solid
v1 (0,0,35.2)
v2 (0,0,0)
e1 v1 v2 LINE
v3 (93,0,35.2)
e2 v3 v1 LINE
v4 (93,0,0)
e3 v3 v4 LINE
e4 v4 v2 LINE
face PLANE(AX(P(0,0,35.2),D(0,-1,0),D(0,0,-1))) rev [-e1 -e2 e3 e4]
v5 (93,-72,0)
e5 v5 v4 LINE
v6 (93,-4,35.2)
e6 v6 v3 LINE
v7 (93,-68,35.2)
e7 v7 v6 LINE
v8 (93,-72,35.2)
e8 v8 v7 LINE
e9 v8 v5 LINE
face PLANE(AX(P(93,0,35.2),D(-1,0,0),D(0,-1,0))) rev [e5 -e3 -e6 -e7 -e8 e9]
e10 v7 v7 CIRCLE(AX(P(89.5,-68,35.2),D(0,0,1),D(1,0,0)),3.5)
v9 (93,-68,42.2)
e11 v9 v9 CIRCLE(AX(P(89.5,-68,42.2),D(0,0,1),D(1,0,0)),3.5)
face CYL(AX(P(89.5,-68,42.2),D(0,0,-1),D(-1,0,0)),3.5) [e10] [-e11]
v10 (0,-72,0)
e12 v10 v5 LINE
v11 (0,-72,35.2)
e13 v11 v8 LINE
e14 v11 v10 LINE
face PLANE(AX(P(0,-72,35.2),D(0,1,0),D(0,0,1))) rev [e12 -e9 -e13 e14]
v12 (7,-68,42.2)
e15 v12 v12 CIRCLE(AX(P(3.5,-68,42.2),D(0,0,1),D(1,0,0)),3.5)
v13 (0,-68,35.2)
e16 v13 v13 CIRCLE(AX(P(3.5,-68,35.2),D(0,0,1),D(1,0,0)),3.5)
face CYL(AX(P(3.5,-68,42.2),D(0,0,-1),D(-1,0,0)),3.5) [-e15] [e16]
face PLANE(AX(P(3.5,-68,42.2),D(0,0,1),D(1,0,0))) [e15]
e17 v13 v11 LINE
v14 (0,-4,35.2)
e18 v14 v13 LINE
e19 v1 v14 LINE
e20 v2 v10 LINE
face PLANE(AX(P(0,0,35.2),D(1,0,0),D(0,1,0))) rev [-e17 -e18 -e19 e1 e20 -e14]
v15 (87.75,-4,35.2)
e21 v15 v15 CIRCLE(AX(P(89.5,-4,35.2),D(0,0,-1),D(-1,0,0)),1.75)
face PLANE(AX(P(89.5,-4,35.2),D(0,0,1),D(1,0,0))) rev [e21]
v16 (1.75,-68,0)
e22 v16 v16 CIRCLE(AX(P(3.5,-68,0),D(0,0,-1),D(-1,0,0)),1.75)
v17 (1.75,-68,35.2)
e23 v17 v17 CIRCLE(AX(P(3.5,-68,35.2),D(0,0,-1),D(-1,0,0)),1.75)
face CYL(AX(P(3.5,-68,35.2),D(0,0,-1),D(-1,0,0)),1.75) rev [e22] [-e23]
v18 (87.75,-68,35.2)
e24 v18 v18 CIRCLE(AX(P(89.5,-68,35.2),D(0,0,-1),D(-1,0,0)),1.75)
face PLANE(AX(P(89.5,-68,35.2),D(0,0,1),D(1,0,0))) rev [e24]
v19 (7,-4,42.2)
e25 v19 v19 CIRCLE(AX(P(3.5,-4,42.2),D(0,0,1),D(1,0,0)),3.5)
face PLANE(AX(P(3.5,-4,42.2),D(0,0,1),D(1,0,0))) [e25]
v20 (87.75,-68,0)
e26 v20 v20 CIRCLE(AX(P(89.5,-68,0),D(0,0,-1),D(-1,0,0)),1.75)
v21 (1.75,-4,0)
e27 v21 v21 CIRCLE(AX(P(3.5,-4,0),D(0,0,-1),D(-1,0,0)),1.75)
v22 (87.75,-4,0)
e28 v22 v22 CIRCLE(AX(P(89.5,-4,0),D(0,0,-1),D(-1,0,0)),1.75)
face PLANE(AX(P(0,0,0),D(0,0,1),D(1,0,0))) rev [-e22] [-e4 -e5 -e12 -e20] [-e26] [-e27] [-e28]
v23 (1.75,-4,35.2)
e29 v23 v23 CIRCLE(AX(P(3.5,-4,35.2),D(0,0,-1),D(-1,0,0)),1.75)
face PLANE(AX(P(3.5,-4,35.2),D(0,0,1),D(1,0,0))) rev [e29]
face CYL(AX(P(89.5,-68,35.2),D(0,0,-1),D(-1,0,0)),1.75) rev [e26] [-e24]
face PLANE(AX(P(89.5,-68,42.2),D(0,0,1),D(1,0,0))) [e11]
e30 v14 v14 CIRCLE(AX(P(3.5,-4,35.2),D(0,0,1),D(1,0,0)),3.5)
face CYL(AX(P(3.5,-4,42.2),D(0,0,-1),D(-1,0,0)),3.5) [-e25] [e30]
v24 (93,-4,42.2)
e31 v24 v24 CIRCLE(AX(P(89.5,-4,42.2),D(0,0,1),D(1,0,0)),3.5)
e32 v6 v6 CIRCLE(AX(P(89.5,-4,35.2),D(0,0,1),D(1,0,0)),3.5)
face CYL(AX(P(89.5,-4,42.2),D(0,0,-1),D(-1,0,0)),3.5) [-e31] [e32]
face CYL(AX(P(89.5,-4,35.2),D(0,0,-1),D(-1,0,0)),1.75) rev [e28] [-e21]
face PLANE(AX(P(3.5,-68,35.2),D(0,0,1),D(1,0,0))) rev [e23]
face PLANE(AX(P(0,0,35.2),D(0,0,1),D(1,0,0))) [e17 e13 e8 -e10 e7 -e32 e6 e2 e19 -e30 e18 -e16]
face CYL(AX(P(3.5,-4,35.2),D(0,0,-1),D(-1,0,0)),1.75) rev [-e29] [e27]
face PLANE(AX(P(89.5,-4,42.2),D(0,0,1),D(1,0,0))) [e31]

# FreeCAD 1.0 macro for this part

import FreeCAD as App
import Part
import Sketcher

V = App.Vector


def add_polygon(sketch, points):
    """Adds a closed chain of lines whose ends are joined by coincident constraints."""
    first, n = sketch.GeometryCount, len(points)
    for a, b in zip(points, points[1:] + points[:1]):
        sketch.addGeometry(Part.LineSegment(App.Vector(*a, 0), App.Vector(*b, 0)), False)
    for i in range(n):
        sketch.addConstraint(Sketcher.Constraint("Coincident", first + i, 2, first + (i + 1) % n, 1))

doc = App.newDocument("Part")
params = doc.addObject("Spreadsheet::Sheet", "Params")
for row, (alias, value) in enumerate([
    ("sketch1_width", "93 mm"),
    ("sketch1_height", "72 mm"),
    ("pad1_length", "35.2 mm"),
    ("sketch2_diameter", "3.5 mm"),
    ("sketch3_diameter", "7 mm"),
    ("pad2_length", "7 mm"),
], start=1):
    params.set(f"A{row}", alias)
    params.set(f"B{row}", "=" + value)
    params.setAlias(f"B{row}", alias)

body = doc.addObject("PartDesign::Body", "Body")

# Sketch on XY plane
sketch1 = body.newObject("Sketcher::SketchObject", "Sketch")
sketch1.AttachmentSupport = (doc.getObject("XY_Plane"), [""])
sketch1.MapMode = "FlatFace"
add_polygon(sketch1, [(0, 0), (0, -72), (93, -72), (93, 0)])  # lines 0-3
sketch1.addConstraint(Sketcher.Constraint("Vertical", 0))
sketch1.addConstraint(Sketcher.Constraint("Horizontal", 1))
sketch1.addConstraint(Sketcher.Constraint("Vertical", 2))
sketch1.addConstraint(Sketcher.Constraint("Horizontal", 3))
sketch1.addConstraint(Sketcher.Constraint("Coincident", 3, 2, -1, 1))
sketch1.addConstraint(Sketcher.Constraint("DistanceX", 1, 1, 1, 2, 93.0))
sketch1.addConstraint(Sketcher.Constraint("DistanceY", 0, 2, 0, 1, 72.0))
sketch1.setExpression("Constraints[9]", "Params.sketch1_width")
sketch1.setExpression("Constraints[10]", "Params.sketch1_height")
pad1 = body.newObject("PartDesign::Pad", "Pad")
pad1.Profile = sketch1
pad1.setExpression("Length", "Params.pad1_length")

# Sketch on XY plane
sketch2 = body.newObject("Sketcher::SketchObject", "Sketch001")
sketch2.AttachmentSupport = (doc.getObject("XY_Plane"), [""])
sketch2.MapMode = "FlatFace"
sketch2.addGeometry(Part.Circle(V(89.5, -4, 0), V(0, 0, 1), 1.75), False)
sketch2.addGeometry(Part.Circle(V(3.5, -4, 0), V(0, 0, 1), 1.75), False)
sketch2.addGeometry(Part.Circle(V(89.5, -68, 0), V(0, 0, 1), 1.75), False)
sketch2.addGeometry(Part.Circle(V(3.5, -68, 0), V(0, 0, 1), 1.75), False)
sketch2.addConstraint(Sketcher.Constraint("Equal", 0, 1))
sketch2.addConstraint(Sketcher.Constraint("Equal", 1, 2))
sketch2.addConstraint(Sketcher.Constraint("Equal", 2, 3))
sketch2.addConstraint(Sketcher.Constraint("Horizontal", 0, 3, 1, 3))
sketch2.addConstraint(Sketcher.Constraint("Horizontal", 2, 3, 3, 3))
sketch2.addConstraint(Sketcher.Constraint("Vertical", 0, 3, 2, 3))
sketch2.addConstraint(Sketcher.Constraint("Vertical", 1, 3, 3, 3))
sketch2.addConstraint(Sketcher.Constraint("Diameter", 0, 3.5))
sketch2.addConstraint(Sketcher.Constraint("DistanceY", 0, 3, -1, 1, 4.0))
sketch2.addConstraint(Sketcher.Constraint("DistanceY", 2, 3, -1, 1, 68.0))
sketch2.addConstraint(Sketcher.Constraint("DistanceX", 1, 3, 0, 3, 86.0))
sketch2.addConstraint(Sketcher.Constraint("DistanceX", -1, 1, 0, 3, 89.5))
sketch2.setExpression("Constraints[7]", "Params.sketch2_diameter")
pocket1 = body.newObject("PartDesign::Pocket", "Pocket")
pocket1.Profile = sketch2
pocket1.Type = "ThroughAll"
pocket1.Reversed = True

# Sketch on XY plane
sketch3 = body.newObject("Sketcher::SketchObject", "Sketch002")
sketch3.AttachmentSupport = (doc.getObject("XY_Plane"), [""])
sketch3.MapMode = "FlatFace"
sketch3.AttachmentOffset = App.Placement(V(0, 0, 35.2), App.Rotation())
sketch3.addGeometry(Part.Circle(V(89.5, -68, 0), V(0, 0, 1), 3.5), False)
sketch3.addGeometry(Part.Circle(V(3.5, -68, 0), V(0, 0, 1), 3.5), False)
sketch3.addGeometry(Part.Circle(V(89.5, -4, 0), V(0, 0, 1), 3.5), False)
sketch3.addGeometry(Part.Circle(V(3.5, -4, 0), V(0, 0, 1), 3.5), False)
sketch3.addConstraint(Sketcher.Constraint("Equal", 0, 1))
sketch3.addConstraint(Sketcher.Constraint("Equal", 1, 2))
sketch3.addConstraint(Sketcher.Constraint("Equal", 2, 3))
sketch3.addConstraint(Sketcher.Constraint("Horizontal", 0, 3, 1, 3))
sketch3.addConstraint(Sketcher.Constraint("Horizontal", 2, 3, 3, 3))
sketch3.addConstraint(Sketcher.Constraint("Vertical", 0, 3, 2, 3))
sketch3.addConstraint(Sketcher.Constraint("Vertical", 1, 3, 3, 3))
sketch3.addConstraint(Sketcher.Constraint("Diameter", 0, 7.0))
sketch3.addConstraint(Sketcher.Constraint("DistanceY", 0, 3, -1, 1, 68.0))
sketch3.addConstraint(Sketcher.Constraint("DistanceY", 2, 3, -1, 1, 4.0))
sketch3.addConstraint(Sketcher.Constraint("DistanceX", 1, 3, 0, 3, 86.0))
sketch3.addConstraint(Sketcher.Constraint("DistanceX", -1, 1, 0, 3, 89.5))
sketch3.setExpression("Constraints[7]", "Params.sketch3_diameter")
pad2 = body.newObject("PartDesign::Pad", "Pad001")
pad2.Profile = sketch3
pad2.setExpression("Length", "Params.pad2_length")

doc.recompute()
